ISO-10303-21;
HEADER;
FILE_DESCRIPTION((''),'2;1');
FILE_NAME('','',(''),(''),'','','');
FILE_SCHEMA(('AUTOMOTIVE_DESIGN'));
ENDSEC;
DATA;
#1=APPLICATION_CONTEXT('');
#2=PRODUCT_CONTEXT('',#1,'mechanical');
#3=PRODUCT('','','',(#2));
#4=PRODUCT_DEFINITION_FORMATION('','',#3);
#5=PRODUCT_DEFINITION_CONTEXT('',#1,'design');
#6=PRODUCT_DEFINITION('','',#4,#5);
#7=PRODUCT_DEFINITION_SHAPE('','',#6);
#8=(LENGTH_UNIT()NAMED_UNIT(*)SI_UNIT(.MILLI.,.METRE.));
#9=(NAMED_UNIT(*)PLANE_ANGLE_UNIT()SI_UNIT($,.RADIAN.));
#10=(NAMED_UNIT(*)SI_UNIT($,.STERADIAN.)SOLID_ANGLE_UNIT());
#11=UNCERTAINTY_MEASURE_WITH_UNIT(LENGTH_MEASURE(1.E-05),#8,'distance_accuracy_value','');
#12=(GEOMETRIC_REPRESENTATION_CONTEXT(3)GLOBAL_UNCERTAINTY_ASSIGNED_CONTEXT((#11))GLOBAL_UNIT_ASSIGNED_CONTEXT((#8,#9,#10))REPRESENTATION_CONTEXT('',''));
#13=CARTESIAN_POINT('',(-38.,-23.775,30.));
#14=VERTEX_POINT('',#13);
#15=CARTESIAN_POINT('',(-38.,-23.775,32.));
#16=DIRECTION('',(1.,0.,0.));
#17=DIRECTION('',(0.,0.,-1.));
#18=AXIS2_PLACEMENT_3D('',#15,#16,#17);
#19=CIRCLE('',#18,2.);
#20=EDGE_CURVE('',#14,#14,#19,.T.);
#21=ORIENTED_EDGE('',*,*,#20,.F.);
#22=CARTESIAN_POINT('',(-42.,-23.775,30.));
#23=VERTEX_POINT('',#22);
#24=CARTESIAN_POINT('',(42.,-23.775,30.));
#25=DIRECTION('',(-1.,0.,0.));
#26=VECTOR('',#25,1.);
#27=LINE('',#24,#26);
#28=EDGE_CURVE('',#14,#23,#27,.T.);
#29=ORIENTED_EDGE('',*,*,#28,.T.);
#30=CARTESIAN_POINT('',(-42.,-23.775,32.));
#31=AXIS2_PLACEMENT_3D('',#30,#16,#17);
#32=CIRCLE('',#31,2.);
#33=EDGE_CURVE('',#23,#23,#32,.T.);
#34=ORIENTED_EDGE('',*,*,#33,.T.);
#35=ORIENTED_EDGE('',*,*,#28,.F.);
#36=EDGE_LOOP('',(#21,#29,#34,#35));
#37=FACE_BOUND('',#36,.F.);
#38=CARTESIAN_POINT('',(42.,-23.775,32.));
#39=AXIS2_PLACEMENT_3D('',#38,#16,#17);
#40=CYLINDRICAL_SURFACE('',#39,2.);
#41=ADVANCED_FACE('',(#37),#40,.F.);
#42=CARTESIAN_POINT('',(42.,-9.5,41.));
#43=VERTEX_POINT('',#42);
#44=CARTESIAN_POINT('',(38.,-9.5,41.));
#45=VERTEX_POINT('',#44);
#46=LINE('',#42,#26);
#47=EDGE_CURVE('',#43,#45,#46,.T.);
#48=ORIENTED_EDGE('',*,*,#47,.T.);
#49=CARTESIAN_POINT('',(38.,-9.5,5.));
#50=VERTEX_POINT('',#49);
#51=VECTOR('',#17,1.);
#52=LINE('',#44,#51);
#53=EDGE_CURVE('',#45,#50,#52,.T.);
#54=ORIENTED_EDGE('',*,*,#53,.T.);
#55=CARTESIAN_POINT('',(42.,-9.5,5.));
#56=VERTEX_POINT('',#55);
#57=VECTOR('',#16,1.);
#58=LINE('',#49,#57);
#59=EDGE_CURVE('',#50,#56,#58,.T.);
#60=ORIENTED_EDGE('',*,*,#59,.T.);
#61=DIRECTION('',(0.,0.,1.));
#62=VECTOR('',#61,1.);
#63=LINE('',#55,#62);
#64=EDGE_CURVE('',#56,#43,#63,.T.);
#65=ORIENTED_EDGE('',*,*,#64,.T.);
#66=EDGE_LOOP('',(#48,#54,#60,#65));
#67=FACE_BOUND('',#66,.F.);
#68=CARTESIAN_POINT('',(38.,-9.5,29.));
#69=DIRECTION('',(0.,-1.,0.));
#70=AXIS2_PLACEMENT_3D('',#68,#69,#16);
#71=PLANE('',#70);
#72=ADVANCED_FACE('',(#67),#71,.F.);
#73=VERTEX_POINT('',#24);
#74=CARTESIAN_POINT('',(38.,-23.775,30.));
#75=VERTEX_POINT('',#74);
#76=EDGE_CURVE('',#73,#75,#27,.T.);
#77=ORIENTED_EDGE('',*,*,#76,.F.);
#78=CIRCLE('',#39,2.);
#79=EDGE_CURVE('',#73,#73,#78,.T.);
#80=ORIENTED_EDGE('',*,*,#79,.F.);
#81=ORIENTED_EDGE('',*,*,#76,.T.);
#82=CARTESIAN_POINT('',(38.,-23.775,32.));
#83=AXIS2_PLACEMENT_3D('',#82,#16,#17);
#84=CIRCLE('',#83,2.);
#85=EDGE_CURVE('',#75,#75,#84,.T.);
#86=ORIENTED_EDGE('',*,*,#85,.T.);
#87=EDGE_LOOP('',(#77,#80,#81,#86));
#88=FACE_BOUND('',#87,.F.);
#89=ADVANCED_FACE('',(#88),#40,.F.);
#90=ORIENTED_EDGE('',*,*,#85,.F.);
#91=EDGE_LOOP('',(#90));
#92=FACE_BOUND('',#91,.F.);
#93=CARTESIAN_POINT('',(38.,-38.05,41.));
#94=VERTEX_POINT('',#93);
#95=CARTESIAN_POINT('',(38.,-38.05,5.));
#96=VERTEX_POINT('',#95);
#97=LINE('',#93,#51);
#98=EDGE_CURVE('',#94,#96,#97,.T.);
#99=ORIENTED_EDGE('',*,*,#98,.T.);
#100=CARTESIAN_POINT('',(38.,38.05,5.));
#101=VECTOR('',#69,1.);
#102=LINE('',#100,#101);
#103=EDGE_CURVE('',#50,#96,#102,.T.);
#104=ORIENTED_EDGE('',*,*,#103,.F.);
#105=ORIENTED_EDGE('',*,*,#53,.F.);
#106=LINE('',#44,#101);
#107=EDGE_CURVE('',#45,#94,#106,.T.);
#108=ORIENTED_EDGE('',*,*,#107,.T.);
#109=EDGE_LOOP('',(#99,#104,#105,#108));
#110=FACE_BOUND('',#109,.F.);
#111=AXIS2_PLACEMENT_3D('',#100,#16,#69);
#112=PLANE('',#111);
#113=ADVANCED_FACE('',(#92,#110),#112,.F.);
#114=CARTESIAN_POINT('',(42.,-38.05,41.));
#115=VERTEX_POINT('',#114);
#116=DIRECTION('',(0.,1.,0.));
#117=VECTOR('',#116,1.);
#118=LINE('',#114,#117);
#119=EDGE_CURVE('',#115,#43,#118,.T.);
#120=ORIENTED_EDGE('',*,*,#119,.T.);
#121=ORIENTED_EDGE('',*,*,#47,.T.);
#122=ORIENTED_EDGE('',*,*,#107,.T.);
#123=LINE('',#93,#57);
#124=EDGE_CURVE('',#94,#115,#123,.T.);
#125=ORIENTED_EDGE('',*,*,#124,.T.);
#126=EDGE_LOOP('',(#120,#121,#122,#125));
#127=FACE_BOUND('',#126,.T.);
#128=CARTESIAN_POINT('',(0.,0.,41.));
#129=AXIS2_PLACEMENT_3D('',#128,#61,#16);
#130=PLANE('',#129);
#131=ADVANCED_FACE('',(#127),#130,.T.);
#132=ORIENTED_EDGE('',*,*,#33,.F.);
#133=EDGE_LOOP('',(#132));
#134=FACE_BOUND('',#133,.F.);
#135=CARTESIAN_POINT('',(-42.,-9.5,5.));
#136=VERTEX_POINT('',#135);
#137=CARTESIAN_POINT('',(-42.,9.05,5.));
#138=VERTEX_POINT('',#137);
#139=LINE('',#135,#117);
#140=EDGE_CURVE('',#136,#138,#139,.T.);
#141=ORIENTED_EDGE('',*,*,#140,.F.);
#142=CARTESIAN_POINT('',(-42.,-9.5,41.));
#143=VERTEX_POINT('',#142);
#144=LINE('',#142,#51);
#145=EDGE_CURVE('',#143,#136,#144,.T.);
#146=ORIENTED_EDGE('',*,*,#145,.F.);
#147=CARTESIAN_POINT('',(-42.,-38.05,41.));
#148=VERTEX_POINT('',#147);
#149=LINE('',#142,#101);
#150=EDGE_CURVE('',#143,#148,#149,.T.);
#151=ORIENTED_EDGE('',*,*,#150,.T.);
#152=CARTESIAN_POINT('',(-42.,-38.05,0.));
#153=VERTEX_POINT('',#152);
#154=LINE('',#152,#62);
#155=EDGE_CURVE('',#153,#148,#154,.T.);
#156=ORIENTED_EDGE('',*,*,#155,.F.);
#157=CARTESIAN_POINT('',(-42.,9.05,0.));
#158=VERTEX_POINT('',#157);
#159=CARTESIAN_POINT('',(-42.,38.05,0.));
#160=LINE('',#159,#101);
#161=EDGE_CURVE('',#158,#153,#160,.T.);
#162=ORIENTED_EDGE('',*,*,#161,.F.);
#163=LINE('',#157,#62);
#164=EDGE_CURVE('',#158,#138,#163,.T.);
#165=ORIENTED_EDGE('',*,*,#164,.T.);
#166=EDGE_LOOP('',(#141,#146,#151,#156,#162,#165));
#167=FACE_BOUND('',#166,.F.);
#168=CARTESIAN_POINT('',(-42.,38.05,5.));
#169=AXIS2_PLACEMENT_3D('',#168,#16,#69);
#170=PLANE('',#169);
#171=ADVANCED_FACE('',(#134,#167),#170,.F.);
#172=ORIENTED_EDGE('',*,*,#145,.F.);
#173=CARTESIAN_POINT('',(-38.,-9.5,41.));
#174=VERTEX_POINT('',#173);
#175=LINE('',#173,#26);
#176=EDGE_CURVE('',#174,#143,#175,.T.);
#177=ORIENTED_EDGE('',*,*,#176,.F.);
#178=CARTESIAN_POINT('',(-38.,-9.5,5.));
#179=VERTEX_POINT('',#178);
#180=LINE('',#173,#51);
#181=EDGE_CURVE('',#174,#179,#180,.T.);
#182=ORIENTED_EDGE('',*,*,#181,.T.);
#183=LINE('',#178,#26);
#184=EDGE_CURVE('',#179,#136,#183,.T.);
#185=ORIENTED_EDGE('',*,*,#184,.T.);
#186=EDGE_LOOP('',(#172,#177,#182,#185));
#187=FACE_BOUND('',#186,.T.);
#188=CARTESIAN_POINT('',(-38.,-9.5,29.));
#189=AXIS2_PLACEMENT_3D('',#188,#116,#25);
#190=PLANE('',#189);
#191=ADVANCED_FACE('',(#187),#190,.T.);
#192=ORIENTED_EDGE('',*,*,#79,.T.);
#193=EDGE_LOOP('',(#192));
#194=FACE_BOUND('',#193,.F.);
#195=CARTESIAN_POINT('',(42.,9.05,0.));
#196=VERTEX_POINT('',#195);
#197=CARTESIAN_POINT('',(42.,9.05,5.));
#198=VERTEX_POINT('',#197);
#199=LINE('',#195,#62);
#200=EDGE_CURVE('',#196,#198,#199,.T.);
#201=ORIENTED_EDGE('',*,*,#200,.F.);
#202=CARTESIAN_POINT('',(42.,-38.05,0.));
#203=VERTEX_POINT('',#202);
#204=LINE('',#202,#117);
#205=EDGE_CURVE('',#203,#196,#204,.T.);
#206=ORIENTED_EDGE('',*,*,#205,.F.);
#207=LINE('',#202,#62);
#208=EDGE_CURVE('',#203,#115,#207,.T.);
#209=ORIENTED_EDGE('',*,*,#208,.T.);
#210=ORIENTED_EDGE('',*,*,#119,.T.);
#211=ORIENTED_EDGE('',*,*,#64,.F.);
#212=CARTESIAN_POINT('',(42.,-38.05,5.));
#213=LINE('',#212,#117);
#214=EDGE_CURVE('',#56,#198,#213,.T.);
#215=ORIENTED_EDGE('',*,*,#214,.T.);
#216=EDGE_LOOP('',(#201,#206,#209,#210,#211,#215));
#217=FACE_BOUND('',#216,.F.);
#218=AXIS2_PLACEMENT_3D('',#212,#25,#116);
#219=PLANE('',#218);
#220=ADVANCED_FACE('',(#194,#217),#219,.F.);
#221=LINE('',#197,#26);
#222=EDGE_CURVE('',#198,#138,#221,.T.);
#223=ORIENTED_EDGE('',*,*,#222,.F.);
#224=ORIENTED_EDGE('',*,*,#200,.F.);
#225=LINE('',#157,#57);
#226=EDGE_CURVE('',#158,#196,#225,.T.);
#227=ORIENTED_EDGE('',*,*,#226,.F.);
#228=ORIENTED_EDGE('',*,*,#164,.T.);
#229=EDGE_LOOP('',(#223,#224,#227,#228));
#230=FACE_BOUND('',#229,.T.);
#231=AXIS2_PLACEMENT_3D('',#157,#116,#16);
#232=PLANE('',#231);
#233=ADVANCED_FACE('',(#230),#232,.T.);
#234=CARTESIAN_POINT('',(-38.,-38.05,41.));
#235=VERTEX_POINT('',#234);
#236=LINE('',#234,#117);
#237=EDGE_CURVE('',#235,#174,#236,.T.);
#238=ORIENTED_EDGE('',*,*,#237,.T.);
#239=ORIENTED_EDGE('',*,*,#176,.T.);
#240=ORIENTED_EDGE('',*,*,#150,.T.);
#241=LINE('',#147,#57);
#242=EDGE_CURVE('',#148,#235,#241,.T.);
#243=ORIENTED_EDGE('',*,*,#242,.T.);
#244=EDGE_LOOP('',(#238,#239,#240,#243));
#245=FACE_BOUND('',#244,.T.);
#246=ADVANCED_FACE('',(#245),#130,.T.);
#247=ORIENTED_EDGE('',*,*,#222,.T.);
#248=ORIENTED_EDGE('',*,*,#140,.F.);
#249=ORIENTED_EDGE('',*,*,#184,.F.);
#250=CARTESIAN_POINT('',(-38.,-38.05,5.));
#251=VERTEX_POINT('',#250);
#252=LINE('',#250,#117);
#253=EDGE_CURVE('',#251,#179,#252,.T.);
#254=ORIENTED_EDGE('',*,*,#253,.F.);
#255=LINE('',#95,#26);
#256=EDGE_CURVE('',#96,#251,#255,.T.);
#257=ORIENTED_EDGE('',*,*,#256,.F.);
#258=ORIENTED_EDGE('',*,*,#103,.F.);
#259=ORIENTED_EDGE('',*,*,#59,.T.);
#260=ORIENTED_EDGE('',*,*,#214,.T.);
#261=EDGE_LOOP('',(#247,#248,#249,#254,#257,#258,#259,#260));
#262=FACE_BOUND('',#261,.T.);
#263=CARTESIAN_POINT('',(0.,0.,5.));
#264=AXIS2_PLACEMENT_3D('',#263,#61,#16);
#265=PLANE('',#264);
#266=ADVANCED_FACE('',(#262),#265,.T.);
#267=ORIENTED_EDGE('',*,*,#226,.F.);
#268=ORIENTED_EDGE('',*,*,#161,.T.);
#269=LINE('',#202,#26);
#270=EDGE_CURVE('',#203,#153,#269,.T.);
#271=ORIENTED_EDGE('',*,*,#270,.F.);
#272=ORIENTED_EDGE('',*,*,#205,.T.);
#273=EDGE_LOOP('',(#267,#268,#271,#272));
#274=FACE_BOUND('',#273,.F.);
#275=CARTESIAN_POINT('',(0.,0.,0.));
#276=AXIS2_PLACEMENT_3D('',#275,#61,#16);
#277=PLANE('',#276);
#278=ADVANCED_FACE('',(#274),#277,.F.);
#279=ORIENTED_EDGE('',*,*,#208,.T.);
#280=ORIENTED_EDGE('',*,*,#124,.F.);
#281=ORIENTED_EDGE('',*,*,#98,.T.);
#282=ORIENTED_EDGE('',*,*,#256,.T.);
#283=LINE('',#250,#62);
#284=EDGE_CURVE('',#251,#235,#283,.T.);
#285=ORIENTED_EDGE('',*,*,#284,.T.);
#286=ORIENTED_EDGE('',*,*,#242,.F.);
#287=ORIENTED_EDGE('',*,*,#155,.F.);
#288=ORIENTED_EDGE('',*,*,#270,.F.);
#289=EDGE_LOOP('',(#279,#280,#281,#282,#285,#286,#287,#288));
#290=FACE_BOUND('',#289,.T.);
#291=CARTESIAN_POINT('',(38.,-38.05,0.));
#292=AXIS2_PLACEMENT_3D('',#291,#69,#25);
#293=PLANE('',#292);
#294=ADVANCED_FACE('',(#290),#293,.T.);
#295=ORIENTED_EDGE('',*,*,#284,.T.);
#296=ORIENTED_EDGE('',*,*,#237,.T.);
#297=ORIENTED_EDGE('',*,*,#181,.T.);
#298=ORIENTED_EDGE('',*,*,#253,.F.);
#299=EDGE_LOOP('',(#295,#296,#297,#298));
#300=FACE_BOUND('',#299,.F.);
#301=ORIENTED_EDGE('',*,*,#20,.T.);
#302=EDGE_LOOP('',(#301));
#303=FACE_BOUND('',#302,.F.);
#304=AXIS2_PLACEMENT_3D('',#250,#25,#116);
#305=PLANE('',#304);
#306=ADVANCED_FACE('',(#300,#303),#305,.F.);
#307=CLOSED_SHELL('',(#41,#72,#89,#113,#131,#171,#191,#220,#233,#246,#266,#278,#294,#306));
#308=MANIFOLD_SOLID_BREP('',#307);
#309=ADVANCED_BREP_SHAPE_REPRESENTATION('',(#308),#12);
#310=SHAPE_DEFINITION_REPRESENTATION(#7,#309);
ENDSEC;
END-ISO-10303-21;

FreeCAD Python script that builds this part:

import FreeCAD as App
import Part
import Sketcher
from FreeCAD import Vector
Q = App.Units.Quantity


def add_polygon(sketch, points):
    """Adds a closed chain of lines whose ends are joined by coincident constraints."""
    first, n = sketch.GeometryCount, len(points)
    for a, b in zip(points, points[1:] + points[:1]):
        sketch.addGeometry(Part.LineSegment(App.Vector(*a, 0), App.Vector(*b, 0)), False)
    for i in range(n):
        sketch.addConstraint(Sketcher.Constraint("Coincident", first + i, 2, first + (i + 1) % n, 1))

doc = App.newDocument("Part")
params = doc.addObject("Spreadsheet::Sheet", "Params")
for row, (alias, value) in enumerate([
    ("sketch1_width", "76 mm"),
    ("sketch1_height", "76.1 mm"),
    ("pad1_length", "5 mm"),
    ("sketch2_width", "4 mm"),
    ("sketch2_height", "76.1 mm"),
    ("pad2_length", "24 mm"),
    ("pad2_length2", "5 mm"),
    ("sketch3_width", "4 mm"),
    ("sketch3_height", "19 mm"),
    ("pocket1_length", "24 mm"),
    ("sketch4_width", "84 mm"),
    ("sketch4_width2", "4 mm"),
    ("sketch4_height", "29 mm"),
    ("sketch4_height2", "24 mm"),
    ("pocket2_length", "29 mm"),
    ("sketch5_width", "4 mm"),
    ("sketch5_height", "28.55 mm"),
    ("pad3_length", "12 mm"),
    ("sketch6_diameter", "4 mm"),
    ("pocket3_length", "84 mm"),
], start=1):
    params.set(f"A{row}", alias)
    params.set(f"B{row}", "=" + value)
    params.setAlias(f"B{row}", alias)

body = doc.addObject("PartDesign::Body", "Body")

# Sketch on XY plane
sketch1 = body.newObject("Sketcher::SketchObject", "Sketch")
sketch1.AttachmentSupport = (doc.getObject("XY_Plane"), [""])
sketch1.MapMode = "FlatFace"
add_polygon(sketch1, [(38, 38), (-38, 38), (-38, -38), (38, -38)])  # lines 0-3
sketch1.addConstraint([
    Sketcher.Constraint("Horizontal", 0),
    Sketcher.Constraint("Vertical", 1),
    Sketcher.Constraint("Horizontal", 2),
    Sketcher.Constraint("Vertical", 3),
    Sketcher.Constraint("Symmetric", 0, 2, 2, 2, -1, 1),
    Sketcher.Constraint("DistanceX", 0, 2, 0, 1, Q("76 mm")),
    Sketcher.Constraint("DistanceY", 1, 2, 1, 1, Q("76.1 mm")),
])
sketch1.setExpression("Constraints[9]", "Params.sketch1_width")
sketch1.setExpression("Constraints[10]", "Params.sketch1_height")
pad1 = body.newObject("PartDesign::Pad", "Pad")
pad1.Profile = sketch1
pad1.setExpression("Length", "Params.pad1_length")

# Sketch on XY plane
sketch2 = body.newObject("Sketcher::SketchObject", "Sketch001")
sketch2.AttachmentSupport = (doc.getObject("XY_Plane"), [""])
sketch2.MapMode = "FlatFace"
sketch2.AttachmentOffset = App.Placement(Vector(0, 0, 5), App.Rotation())
add_polygon(sketch2, [(42, 38), (38, 38), (38, -38), (42, -38)])  # lines 0-3
add_polygon(sketch2, [(-38, -38), (-38, 38), (-42, 38), (-42, -38)])  # lines 4-7
sketch2.addConstraint([
    Sketcher.Constraint("Horizontal", 0),
    Sketcher.Constraint("Vertical", 1),
    Sketcher.Constraint("Horizontal", 2),
    Sketcher.Constraint("Vertical", 3),
    Sketcher.Constraint("Vertical", 4),
    Sketcher.Constraint("Horizontal", 5),
    Sketcher.Constraint("Vertical", 6),
    Sketcher.Constraint("Horizontal", 7),
    Sketcher.Constraint("Symmetric", 1, 2, 4, 2, -1, 1),
    Sketcher.Constraint("Symmetric", 3, 2, 6, 2, -1, 1),
    Sketcher.Constraint("Horizontal", 3, 2, 4, 2),
    Sketcher.Constraint("DistanceX", 0, 2, 0, 1, Q("4 mm")),
    Sketcher.Constraint("DistanceY", 1, 2, 1, 1, Q("76.1 mm")),
    Sketcher.Constraint("DistanceX", -1, 1, 0, 2, Q("38 mm")),
])
sketch2.setExpression("Constraints[19]", "Params.sketch2_width")
sketch2.setExpression("Constraints[20]", "Params.sketch2_height")
pad2 = body.newObject("PartDesign::Pad", "Pad001")
pad2.Profile = sketch2
pad2.Type = "TwoLengths"
pad2.setExpression("Length", "Params.pad2_length")
pad2.setExpression("Length2", "Params.pad2_length2")

# Sketch on XY plane
sketch3 = body.newObject("Sketcher::SketchObject", "Sketch002")
sketch3.AttachmentSupport = (doc.getObject("XY_Plane"), [""])
sketch3.MapMode = "FlatFace"
sketch3.AttachmentOffset = App.Placement(Vector(0, 0, 29), App.Rotation())
add_polygon(sketch3, [(42, 9.5), (38, 9.5), (38, -9.5), (42, -9.5)])  # lines 0-3
add_polygon(sketch3, [(-38, 9.5), (-42, 9.5), (-42, -9.5), (-38, -9.5)])  # lines 4-7
sketch3.addConstraint([
    Sketcher.Constraint("Horizontal", 0),
    Sketcher.Constraint("Vertical", 1),
    Sketcher.Constraint("Horizontal", 2),
    Sketcher.Constraint("Vertical", 3),
    Sketcher.Constraint("Horizontal", 4),
    Sketcher.Constraint("Vertical", 5),
    Sketcher.Constraint("Horizontal", 6),
    Sketcher.Constraint("Vertical", 7),
    Sketcher.Constraint("Symmetric", 2, 2, 4, 2, -1, 1),
    Sketcher.Constraint("Symmetric", 0, 2, 6, 2, -1, 1),
    Sketcher.Constraint("Horizontal", 3, 2, 4, 2),
    Sketcher.Constraint("DistanceX", 0, 2, 0, 1, Q("4 mm")),
    Sketcher.Constraint("DistanceY", 1, 2, 1, 1, Q("19 mm")),
    Sketcher.Constraint("DistanceX", -1, 1, 0, 2, Q("38 mm")),
])
sketch3.setExpression("Constraints[19]", "Params.sketch3_width")
sketch3.setExpression("Constraints[20]", "Params.sketch3_height")
pocket1 = body.newObject("PartDesign::Pocket", "Pocket")
pocket1.Profile = sketch3
pocket1.setExpression("Length", "Params.pocket1_length")

# Sketch on XZ plane
sketch4 = body.newObject("Sketcher::SketchObject", "Sketch003")
sketch4.AttachmentSupport = (doc.getObject("XZ_Plane"), [""])
sketch4.MapMode = "FlatFace"
sketch4.AttachmentOffset = App.Placement(Vector(0, 0, -38.05), App.Rotation())
add_polygon(sketch4, [(42, 0), (-42, 0), (-42, 29), (-38, 29), (-38, 5), (38, 5), (38, 29), (42, 29)])  # lines 0-7
sketch4.addConstraint([
    Sketcher.Constraint("Horizontal", 0),
    Sketcher.Constraint("Vertical", 1),
    Sketcher.Constraint("Horizontal", 2),
    Sketcher.Constraint("Vertical", 3),
    Sketcher.Constraint("Horizontal", 4),
    Sketcher.Constraint("Vertical", 5),
    Sketcher.Constraint("Horizontal", 6),
    Sketcher.Constraint("Vertical", 7),
    Sketcher.Constraint("Symmetric", 0, 2, 7, 2, -1, 1),
    Sketcher.Constraint("Symmetric", 2, 2, 5, 2, -2),
    Sketcher.Constraint("DistanceX", 0, 2, 0, 1, Q("84 mm")),
    Sketcher.Constraint("DistanceX", 2, 1, 2, 2, Q("4 mm")),
    Sketcher.Constraint("DistanceY", 1, 1, 1, 2, Q("29 mm")),
    Sketcher.Constraint("DistanceY", 3, 2, 3, 1, Q("24 mm")),
])
sketch4.setExpression("Constraints[18]", "Params.sketch4_width")
sketch4.setExpression("Constraints[19]", "Params.sketch4_width2")
sketch4.setExpression("Constraints[20]", "Params.sketch4_height")
sketch4.setExpression("Constraints[21]", "Params.sketch4_height2")
pocket2 = body.newObject("PartDesign::Pocket", "Pocket001")
pocket2.Profile = sketch4
pocket2.setExpression("Length", "Params.pocket2_length")
pocket2.Reversed = True

# Sketch on XY plane
sketch5 = body.newObject("Sketcher::SketchObject", "Sketch004")
sketch5.AttachmentSupport = (doc.getObject("XY_Plane"), [""])
sketch5.MapMode = "FlatFace"
sketch5.AttachmentOffset = App.Placement(Vector(0, 0, 29), App.Rotation())
add_polygon(sketch5, [(-38, -38), (-38, -9.5), (-42, -9.5), (-42, -38)])  # lines 0-3
add_polygon(sketch5, [(42, -38), (42, -9.5), (38, -9.5), (38, -38)])  # lines 4-7
sketch5.addConstraint([
    Sketcher.Constraint("Vertical", 0),
    Sketcher.Constraint("Horizontal", 1),
    Sketcher.Constraint("Vertical", 2),
    Sketcher.Constraint("Horizontal", 3),
    Sketcher.Constraint("Vertical", 4),
    Sketcher.Constraint("Horizontal", 5),
    Sketcher.Constraint("Vertical", 6),
    Sketcher.Constraint("Horizontal", 7),
    Sketcher.Constraint("Symmetric", 1, 2, 4, 2, -2),
    Sketcher.Constraint("Symmetric", 3, 2, 6, 2, -2),
    Sketcher.Constraint("DistanceX", 1, 2, 1, 1, Q("4 mm")),
    Sketcher.Constraint("DistanceX", 0, 2, -1, 1, Q("38 mm")),
    Sketcher.Constraint("DistanceY", 0, 1, 0, 2, Q("28.55 mm")),
    Sketcher.Constraint("DistanceY", 0, 2, -1, 1, Q("9.5 mm")),
])
sketch5.setExpression("Constraints[18]", "Params.sketch5_width")
sketch5.setExpression("Constraints[20]", "Params.sketch5_height")
pad3 = body.newObject("PartDesign::Pad", "Pad002")
pad3.Profile = sketch5
pad3.setExpression("Length", "Params.pad3_length")

# Sketch on YZ plane
sketch6 = body.newObject("Sketcher::SketchObject", "Sketch005")
sketch6.AttachmentSupport = (doc.getObject("YZ_Plane"), [""])
sketch6.MapMode = "FlatFace"
sketch6.AttachmentOffset = App.Placement(Vector(0, 0, 42), App.Rotation())
sketch6.addGeometry(Part.Circle(Vector(-23.8, 32, 0), Vector(0, 0, 1), 2), False)
sketch6.addConstraint([
    Sketcher.Constraint("Diameter", 0, Q("4 mm")),
    Sketcher.Constraint("DistanceY", -1, 1, 0, 3, Q("32 mm")),
    Sketcher.Constraint("DistanceX", 0, 3, -1, 1, Q("23.775 mm")),
])
sketch6.setExpression("Constraints[0]", "Params.sketch6_diameter")
pocket3 = body.newObject("PartDesign::Pocket", "Pocket002")
pocket3.Profile = sketch6
pocket3.setExpression("Length", "Params.pocket3_length")

doc.recompute()
